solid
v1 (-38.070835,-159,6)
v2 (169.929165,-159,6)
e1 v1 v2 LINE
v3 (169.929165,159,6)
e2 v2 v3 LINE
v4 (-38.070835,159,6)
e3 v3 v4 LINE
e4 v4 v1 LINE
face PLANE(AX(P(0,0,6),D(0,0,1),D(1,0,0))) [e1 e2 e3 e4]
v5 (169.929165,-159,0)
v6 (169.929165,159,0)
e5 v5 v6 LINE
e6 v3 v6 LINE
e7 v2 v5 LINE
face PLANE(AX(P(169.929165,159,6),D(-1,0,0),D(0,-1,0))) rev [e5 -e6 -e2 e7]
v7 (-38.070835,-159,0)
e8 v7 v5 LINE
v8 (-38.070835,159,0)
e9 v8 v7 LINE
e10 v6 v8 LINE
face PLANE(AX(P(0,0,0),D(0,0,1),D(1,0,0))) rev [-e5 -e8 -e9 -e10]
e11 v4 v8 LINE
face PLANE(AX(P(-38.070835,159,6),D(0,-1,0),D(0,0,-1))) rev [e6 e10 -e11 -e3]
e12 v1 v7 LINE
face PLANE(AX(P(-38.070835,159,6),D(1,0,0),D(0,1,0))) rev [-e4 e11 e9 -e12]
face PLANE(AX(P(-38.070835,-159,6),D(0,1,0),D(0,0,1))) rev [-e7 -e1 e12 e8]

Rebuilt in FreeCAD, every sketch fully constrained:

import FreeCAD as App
import Part
import Sketcher
from FreeCAD import Vector
Q = App.Units.Quantity


def add_polygon(sketch, points):
    """Adds a closed chain of lines whose ends are joined by coincident constraints."""
    first, n = sketch.GeometryCount, len(points)
    for a, b in zip(points, points[1:] + points[:1]):
        sketch.addGeometry(Part.LineSegment(App.Vector(*a, 0), App.Vector(*b, 0)), False)
    for i in range(n):
        sketch.addConstraint(Sketcher.Constraint("Coincident", first + i, 2, first + (i + 1) % n, 1))

doc = App.newDocument("Part")
body = doc.addObject("PartDesign::Body", "Body")

# Sketch on XY plane
sketch1 = body.newObject("Sketcher::SketchObject", "Sketch")
sketch1.AttachmentSupport = (doc.getObject("XY_Plane"), [""])
sketch1.MapMode = "FlatFace"
add_polygon(sketch1, [(-38.070835, 159), (-38.070835, -159), (169.929165, -159), (169.929165, 159)])  # lines 0-3
sketch1.addConstraint([
    Sketcher.Constraint("Vertical", 0),
    Sketcher.Constraint("Horizontal", 1),
    Sketcher.Constraint("Vertical", 2),
    Sketcher.Constraint("Horizontal", 3),
    Sketcher.Constraint("DistanceX", 1, 1, 1, 2, Q("208 mm")),
    Sketcher.Constraint("DistanceY", 0, 2, 0, 1, Q("318 mm")),
    Sketcher.Constraint("DistanceY", 0, 2, -1, 1, Q("159 mm")),
    Sketcher.Constraint("DistanceX", 0, 2, -1, 1, Q("38.070835 mm")),
])
pad1 = body.newObject("PartDesign::Pad", "Pad")
pad1.Profile = sketch1
pad1.Length = 6

doc.recompute()
